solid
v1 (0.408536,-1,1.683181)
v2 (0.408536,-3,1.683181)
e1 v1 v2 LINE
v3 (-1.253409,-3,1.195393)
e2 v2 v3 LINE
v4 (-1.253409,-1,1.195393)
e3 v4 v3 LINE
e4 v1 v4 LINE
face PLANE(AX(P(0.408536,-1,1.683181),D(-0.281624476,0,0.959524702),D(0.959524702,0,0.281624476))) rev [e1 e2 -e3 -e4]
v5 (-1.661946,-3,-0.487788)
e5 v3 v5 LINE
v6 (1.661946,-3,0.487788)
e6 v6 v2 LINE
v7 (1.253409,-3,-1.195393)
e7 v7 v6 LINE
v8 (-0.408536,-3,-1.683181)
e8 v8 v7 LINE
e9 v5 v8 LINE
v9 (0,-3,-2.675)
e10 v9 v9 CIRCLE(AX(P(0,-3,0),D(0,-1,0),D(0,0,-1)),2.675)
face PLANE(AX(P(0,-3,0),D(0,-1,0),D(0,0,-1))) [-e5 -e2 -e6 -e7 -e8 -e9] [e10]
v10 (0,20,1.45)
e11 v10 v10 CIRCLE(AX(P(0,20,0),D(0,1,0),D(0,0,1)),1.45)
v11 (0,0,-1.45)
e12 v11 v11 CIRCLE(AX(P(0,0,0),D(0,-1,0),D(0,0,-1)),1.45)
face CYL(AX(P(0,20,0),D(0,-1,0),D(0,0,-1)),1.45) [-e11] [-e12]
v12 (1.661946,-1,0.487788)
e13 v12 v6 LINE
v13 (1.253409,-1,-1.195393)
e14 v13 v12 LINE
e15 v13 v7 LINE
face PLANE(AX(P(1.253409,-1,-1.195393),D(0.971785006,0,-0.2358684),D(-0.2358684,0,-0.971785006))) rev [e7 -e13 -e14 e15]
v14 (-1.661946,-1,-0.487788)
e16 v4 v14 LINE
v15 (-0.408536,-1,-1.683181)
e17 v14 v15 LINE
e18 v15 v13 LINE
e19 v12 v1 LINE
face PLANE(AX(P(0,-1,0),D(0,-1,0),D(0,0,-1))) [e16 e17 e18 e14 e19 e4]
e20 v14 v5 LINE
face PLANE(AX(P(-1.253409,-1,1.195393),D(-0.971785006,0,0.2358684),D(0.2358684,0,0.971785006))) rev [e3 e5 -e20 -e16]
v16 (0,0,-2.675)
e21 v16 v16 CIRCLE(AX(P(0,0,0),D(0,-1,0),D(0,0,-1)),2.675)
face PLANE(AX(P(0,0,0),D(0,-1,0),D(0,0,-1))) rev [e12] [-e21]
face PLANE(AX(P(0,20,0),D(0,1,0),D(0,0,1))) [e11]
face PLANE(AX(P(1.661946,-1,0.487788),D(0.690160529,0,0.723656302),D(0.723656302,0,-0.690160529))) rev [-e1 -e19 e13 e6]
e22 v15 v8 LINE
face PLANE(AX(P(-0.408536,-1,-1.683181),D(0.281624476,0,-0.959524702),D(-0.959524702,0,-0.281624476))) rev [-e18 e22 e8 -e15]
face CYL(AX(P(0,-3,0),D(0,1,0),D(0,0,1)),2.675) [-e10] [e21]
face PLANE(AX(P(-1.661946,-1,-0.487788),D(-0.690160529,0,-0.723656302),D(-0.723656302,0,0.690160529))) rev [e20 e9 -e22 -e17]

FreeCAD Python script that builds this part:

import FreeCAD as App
import Part
import Sketcher

V = App.Vector


def add_polygon(sketch, points):
    """Adds a closed chain of lines whose ends are joined by coincident constraints."""
    first, n = sketch.GeometryCount, len(points)
    for a, b in zip(points, points[1:] + points[:1]):
        sketch.addGeometry(Part.LineSegment(App.Vector(*a, 0), App.Vector(*b, 0)), False)
    for i in range(n):
        sketch.addConstraint(Sketcher.Constraint("Coincident", first + i, 2, first + (i + 1) % n, 1))

doc = App.newDocument("Part")
params = doc.addObject("Spreadsheet::Sheet", "Params")
for row, (alias, value) in enumerate([
    ("sketch1_diameter", "2.9 mm"),
    ("pad1_length", "20 mm"),
    ("sketch2_diameter", "5.35 mm"),
    ("pad2_length", "3 mm"),
    ("pocket1_length", "2 mm"),
], start=1):
    params.set(f"A{row}", alias)
    params.set(f"B{row}", "=" + value)
    params.setAlias(f"B{row}", alias)

body = doc.addObject("PartDesign::Body", "Body")

# Sketch on XZ plane
sketch1 = doc.addObject("Sketcher::SketchObject", "Sketch")
body.addObject(sketch1)
sketch1.AttachmentSupport = (doc.XZ_Plane, [""])
sketch1.MapMode = "FlatFace"
sketch1.addGeometry(Part.Circle(V(0, 0, 0), V(0, 0, 1), 1.4), False)
sketch1.addConstraint([
    Sketcher.Constraint("Coincident", 0, 3, -1, 1),
    Sketcher.Constraint("Diameter", 0, 2.9),
])
sketch1.setExpression("Constraints[1]", "Params.sketch1_diameter")
pad1 = doc.addObject("PartDesign::Pad", "Pad")
body.addObject(pad1)
pad1.Profile = sketch1
pad1.setExpression("Length", "Params.pad1_length")
pad1.Reversed = True

# Sketch on XZ plane
sketch2 = doc.addObject("Sketcher::SketchObject", "Sketch001")
body.addObject(sketch2)
sketch2.AttachmentSupport = (doc.XZ_Plane, [""])
sketch2.MapMode = "FlatFace"
sketch2.addGeometry(Part.Circle(V(0, 0, 0), V(0, 0, 1), 2.7), False)
sketch2.addConstraint([
    Sketcher.Constraint("Coincident", 0, 3, -1, 1),
    Sketcher.Constraint("Diameter", 0, 5.35),
])
sketch2.setExpression("Constraints[1]", "Params.sketch2_diameter")
pad2 = doc.addObject("PartDesign::Pad", "Pad001")
body.addObject(pad2)
pad2.Profile = sketch2
pad2.setExpression("Length", "Params.pad2_length")

# Sketch on XZ plane
sketch3 = doc.addObject("Sketcher::SketchObject", "Sketch002")
body.addObject(sketch3)
sketch3.AttachmentSupport = (doc.XZ_Plane, [""])
sketch3.MapMode = "FlatFace"
sketch3.AttachmentOffset = App.Placement(V(0, 0, 3), App.Rotation())
add_polygon(sketch3, [(1.7, 0.5), (0.4, 1.7), (-1.3, 1.2), (-1.7, -0.5), (-0.4, -1.7), (1.3, -1.2)])  # lines 0-5
sketch3.addConstraint([
    Sketcher.Constraint("Symmetric", 0, 2, 3, 2, -1, 1),
    Sketcher.Constraint("Symmetric", 1, 2, 4, 2, -1, 1),
    Sketcher.Constraint("Symmetric", 2, 2, 5, 2, -1, 1),
    Sketcher.Constraint("Equal", 0, 1),
    Sketcher.Constraint("Equal", 1, 2),
    Sketcher.Constraint("Distance", 0, 1.732051),
    Sketcher.Constraint("DistanceY", -1, 1, 0, 2, 1.683181),
    Sketcher.Constraint("DistanceX", 1, 2, -1, 1, 1.253409),
    Sketcher.Constraint("DistanceY", 2, 2, 1, 2, 1.683181),
])
pocket1 = doc.addObject("PartDesign::Pocket", "Pocket")
body.addObject(pocket1)
pocket1.Profile = sketch3
pocket1.setExpression("Length", "Params.pocket1_length")

doc.recompute()
